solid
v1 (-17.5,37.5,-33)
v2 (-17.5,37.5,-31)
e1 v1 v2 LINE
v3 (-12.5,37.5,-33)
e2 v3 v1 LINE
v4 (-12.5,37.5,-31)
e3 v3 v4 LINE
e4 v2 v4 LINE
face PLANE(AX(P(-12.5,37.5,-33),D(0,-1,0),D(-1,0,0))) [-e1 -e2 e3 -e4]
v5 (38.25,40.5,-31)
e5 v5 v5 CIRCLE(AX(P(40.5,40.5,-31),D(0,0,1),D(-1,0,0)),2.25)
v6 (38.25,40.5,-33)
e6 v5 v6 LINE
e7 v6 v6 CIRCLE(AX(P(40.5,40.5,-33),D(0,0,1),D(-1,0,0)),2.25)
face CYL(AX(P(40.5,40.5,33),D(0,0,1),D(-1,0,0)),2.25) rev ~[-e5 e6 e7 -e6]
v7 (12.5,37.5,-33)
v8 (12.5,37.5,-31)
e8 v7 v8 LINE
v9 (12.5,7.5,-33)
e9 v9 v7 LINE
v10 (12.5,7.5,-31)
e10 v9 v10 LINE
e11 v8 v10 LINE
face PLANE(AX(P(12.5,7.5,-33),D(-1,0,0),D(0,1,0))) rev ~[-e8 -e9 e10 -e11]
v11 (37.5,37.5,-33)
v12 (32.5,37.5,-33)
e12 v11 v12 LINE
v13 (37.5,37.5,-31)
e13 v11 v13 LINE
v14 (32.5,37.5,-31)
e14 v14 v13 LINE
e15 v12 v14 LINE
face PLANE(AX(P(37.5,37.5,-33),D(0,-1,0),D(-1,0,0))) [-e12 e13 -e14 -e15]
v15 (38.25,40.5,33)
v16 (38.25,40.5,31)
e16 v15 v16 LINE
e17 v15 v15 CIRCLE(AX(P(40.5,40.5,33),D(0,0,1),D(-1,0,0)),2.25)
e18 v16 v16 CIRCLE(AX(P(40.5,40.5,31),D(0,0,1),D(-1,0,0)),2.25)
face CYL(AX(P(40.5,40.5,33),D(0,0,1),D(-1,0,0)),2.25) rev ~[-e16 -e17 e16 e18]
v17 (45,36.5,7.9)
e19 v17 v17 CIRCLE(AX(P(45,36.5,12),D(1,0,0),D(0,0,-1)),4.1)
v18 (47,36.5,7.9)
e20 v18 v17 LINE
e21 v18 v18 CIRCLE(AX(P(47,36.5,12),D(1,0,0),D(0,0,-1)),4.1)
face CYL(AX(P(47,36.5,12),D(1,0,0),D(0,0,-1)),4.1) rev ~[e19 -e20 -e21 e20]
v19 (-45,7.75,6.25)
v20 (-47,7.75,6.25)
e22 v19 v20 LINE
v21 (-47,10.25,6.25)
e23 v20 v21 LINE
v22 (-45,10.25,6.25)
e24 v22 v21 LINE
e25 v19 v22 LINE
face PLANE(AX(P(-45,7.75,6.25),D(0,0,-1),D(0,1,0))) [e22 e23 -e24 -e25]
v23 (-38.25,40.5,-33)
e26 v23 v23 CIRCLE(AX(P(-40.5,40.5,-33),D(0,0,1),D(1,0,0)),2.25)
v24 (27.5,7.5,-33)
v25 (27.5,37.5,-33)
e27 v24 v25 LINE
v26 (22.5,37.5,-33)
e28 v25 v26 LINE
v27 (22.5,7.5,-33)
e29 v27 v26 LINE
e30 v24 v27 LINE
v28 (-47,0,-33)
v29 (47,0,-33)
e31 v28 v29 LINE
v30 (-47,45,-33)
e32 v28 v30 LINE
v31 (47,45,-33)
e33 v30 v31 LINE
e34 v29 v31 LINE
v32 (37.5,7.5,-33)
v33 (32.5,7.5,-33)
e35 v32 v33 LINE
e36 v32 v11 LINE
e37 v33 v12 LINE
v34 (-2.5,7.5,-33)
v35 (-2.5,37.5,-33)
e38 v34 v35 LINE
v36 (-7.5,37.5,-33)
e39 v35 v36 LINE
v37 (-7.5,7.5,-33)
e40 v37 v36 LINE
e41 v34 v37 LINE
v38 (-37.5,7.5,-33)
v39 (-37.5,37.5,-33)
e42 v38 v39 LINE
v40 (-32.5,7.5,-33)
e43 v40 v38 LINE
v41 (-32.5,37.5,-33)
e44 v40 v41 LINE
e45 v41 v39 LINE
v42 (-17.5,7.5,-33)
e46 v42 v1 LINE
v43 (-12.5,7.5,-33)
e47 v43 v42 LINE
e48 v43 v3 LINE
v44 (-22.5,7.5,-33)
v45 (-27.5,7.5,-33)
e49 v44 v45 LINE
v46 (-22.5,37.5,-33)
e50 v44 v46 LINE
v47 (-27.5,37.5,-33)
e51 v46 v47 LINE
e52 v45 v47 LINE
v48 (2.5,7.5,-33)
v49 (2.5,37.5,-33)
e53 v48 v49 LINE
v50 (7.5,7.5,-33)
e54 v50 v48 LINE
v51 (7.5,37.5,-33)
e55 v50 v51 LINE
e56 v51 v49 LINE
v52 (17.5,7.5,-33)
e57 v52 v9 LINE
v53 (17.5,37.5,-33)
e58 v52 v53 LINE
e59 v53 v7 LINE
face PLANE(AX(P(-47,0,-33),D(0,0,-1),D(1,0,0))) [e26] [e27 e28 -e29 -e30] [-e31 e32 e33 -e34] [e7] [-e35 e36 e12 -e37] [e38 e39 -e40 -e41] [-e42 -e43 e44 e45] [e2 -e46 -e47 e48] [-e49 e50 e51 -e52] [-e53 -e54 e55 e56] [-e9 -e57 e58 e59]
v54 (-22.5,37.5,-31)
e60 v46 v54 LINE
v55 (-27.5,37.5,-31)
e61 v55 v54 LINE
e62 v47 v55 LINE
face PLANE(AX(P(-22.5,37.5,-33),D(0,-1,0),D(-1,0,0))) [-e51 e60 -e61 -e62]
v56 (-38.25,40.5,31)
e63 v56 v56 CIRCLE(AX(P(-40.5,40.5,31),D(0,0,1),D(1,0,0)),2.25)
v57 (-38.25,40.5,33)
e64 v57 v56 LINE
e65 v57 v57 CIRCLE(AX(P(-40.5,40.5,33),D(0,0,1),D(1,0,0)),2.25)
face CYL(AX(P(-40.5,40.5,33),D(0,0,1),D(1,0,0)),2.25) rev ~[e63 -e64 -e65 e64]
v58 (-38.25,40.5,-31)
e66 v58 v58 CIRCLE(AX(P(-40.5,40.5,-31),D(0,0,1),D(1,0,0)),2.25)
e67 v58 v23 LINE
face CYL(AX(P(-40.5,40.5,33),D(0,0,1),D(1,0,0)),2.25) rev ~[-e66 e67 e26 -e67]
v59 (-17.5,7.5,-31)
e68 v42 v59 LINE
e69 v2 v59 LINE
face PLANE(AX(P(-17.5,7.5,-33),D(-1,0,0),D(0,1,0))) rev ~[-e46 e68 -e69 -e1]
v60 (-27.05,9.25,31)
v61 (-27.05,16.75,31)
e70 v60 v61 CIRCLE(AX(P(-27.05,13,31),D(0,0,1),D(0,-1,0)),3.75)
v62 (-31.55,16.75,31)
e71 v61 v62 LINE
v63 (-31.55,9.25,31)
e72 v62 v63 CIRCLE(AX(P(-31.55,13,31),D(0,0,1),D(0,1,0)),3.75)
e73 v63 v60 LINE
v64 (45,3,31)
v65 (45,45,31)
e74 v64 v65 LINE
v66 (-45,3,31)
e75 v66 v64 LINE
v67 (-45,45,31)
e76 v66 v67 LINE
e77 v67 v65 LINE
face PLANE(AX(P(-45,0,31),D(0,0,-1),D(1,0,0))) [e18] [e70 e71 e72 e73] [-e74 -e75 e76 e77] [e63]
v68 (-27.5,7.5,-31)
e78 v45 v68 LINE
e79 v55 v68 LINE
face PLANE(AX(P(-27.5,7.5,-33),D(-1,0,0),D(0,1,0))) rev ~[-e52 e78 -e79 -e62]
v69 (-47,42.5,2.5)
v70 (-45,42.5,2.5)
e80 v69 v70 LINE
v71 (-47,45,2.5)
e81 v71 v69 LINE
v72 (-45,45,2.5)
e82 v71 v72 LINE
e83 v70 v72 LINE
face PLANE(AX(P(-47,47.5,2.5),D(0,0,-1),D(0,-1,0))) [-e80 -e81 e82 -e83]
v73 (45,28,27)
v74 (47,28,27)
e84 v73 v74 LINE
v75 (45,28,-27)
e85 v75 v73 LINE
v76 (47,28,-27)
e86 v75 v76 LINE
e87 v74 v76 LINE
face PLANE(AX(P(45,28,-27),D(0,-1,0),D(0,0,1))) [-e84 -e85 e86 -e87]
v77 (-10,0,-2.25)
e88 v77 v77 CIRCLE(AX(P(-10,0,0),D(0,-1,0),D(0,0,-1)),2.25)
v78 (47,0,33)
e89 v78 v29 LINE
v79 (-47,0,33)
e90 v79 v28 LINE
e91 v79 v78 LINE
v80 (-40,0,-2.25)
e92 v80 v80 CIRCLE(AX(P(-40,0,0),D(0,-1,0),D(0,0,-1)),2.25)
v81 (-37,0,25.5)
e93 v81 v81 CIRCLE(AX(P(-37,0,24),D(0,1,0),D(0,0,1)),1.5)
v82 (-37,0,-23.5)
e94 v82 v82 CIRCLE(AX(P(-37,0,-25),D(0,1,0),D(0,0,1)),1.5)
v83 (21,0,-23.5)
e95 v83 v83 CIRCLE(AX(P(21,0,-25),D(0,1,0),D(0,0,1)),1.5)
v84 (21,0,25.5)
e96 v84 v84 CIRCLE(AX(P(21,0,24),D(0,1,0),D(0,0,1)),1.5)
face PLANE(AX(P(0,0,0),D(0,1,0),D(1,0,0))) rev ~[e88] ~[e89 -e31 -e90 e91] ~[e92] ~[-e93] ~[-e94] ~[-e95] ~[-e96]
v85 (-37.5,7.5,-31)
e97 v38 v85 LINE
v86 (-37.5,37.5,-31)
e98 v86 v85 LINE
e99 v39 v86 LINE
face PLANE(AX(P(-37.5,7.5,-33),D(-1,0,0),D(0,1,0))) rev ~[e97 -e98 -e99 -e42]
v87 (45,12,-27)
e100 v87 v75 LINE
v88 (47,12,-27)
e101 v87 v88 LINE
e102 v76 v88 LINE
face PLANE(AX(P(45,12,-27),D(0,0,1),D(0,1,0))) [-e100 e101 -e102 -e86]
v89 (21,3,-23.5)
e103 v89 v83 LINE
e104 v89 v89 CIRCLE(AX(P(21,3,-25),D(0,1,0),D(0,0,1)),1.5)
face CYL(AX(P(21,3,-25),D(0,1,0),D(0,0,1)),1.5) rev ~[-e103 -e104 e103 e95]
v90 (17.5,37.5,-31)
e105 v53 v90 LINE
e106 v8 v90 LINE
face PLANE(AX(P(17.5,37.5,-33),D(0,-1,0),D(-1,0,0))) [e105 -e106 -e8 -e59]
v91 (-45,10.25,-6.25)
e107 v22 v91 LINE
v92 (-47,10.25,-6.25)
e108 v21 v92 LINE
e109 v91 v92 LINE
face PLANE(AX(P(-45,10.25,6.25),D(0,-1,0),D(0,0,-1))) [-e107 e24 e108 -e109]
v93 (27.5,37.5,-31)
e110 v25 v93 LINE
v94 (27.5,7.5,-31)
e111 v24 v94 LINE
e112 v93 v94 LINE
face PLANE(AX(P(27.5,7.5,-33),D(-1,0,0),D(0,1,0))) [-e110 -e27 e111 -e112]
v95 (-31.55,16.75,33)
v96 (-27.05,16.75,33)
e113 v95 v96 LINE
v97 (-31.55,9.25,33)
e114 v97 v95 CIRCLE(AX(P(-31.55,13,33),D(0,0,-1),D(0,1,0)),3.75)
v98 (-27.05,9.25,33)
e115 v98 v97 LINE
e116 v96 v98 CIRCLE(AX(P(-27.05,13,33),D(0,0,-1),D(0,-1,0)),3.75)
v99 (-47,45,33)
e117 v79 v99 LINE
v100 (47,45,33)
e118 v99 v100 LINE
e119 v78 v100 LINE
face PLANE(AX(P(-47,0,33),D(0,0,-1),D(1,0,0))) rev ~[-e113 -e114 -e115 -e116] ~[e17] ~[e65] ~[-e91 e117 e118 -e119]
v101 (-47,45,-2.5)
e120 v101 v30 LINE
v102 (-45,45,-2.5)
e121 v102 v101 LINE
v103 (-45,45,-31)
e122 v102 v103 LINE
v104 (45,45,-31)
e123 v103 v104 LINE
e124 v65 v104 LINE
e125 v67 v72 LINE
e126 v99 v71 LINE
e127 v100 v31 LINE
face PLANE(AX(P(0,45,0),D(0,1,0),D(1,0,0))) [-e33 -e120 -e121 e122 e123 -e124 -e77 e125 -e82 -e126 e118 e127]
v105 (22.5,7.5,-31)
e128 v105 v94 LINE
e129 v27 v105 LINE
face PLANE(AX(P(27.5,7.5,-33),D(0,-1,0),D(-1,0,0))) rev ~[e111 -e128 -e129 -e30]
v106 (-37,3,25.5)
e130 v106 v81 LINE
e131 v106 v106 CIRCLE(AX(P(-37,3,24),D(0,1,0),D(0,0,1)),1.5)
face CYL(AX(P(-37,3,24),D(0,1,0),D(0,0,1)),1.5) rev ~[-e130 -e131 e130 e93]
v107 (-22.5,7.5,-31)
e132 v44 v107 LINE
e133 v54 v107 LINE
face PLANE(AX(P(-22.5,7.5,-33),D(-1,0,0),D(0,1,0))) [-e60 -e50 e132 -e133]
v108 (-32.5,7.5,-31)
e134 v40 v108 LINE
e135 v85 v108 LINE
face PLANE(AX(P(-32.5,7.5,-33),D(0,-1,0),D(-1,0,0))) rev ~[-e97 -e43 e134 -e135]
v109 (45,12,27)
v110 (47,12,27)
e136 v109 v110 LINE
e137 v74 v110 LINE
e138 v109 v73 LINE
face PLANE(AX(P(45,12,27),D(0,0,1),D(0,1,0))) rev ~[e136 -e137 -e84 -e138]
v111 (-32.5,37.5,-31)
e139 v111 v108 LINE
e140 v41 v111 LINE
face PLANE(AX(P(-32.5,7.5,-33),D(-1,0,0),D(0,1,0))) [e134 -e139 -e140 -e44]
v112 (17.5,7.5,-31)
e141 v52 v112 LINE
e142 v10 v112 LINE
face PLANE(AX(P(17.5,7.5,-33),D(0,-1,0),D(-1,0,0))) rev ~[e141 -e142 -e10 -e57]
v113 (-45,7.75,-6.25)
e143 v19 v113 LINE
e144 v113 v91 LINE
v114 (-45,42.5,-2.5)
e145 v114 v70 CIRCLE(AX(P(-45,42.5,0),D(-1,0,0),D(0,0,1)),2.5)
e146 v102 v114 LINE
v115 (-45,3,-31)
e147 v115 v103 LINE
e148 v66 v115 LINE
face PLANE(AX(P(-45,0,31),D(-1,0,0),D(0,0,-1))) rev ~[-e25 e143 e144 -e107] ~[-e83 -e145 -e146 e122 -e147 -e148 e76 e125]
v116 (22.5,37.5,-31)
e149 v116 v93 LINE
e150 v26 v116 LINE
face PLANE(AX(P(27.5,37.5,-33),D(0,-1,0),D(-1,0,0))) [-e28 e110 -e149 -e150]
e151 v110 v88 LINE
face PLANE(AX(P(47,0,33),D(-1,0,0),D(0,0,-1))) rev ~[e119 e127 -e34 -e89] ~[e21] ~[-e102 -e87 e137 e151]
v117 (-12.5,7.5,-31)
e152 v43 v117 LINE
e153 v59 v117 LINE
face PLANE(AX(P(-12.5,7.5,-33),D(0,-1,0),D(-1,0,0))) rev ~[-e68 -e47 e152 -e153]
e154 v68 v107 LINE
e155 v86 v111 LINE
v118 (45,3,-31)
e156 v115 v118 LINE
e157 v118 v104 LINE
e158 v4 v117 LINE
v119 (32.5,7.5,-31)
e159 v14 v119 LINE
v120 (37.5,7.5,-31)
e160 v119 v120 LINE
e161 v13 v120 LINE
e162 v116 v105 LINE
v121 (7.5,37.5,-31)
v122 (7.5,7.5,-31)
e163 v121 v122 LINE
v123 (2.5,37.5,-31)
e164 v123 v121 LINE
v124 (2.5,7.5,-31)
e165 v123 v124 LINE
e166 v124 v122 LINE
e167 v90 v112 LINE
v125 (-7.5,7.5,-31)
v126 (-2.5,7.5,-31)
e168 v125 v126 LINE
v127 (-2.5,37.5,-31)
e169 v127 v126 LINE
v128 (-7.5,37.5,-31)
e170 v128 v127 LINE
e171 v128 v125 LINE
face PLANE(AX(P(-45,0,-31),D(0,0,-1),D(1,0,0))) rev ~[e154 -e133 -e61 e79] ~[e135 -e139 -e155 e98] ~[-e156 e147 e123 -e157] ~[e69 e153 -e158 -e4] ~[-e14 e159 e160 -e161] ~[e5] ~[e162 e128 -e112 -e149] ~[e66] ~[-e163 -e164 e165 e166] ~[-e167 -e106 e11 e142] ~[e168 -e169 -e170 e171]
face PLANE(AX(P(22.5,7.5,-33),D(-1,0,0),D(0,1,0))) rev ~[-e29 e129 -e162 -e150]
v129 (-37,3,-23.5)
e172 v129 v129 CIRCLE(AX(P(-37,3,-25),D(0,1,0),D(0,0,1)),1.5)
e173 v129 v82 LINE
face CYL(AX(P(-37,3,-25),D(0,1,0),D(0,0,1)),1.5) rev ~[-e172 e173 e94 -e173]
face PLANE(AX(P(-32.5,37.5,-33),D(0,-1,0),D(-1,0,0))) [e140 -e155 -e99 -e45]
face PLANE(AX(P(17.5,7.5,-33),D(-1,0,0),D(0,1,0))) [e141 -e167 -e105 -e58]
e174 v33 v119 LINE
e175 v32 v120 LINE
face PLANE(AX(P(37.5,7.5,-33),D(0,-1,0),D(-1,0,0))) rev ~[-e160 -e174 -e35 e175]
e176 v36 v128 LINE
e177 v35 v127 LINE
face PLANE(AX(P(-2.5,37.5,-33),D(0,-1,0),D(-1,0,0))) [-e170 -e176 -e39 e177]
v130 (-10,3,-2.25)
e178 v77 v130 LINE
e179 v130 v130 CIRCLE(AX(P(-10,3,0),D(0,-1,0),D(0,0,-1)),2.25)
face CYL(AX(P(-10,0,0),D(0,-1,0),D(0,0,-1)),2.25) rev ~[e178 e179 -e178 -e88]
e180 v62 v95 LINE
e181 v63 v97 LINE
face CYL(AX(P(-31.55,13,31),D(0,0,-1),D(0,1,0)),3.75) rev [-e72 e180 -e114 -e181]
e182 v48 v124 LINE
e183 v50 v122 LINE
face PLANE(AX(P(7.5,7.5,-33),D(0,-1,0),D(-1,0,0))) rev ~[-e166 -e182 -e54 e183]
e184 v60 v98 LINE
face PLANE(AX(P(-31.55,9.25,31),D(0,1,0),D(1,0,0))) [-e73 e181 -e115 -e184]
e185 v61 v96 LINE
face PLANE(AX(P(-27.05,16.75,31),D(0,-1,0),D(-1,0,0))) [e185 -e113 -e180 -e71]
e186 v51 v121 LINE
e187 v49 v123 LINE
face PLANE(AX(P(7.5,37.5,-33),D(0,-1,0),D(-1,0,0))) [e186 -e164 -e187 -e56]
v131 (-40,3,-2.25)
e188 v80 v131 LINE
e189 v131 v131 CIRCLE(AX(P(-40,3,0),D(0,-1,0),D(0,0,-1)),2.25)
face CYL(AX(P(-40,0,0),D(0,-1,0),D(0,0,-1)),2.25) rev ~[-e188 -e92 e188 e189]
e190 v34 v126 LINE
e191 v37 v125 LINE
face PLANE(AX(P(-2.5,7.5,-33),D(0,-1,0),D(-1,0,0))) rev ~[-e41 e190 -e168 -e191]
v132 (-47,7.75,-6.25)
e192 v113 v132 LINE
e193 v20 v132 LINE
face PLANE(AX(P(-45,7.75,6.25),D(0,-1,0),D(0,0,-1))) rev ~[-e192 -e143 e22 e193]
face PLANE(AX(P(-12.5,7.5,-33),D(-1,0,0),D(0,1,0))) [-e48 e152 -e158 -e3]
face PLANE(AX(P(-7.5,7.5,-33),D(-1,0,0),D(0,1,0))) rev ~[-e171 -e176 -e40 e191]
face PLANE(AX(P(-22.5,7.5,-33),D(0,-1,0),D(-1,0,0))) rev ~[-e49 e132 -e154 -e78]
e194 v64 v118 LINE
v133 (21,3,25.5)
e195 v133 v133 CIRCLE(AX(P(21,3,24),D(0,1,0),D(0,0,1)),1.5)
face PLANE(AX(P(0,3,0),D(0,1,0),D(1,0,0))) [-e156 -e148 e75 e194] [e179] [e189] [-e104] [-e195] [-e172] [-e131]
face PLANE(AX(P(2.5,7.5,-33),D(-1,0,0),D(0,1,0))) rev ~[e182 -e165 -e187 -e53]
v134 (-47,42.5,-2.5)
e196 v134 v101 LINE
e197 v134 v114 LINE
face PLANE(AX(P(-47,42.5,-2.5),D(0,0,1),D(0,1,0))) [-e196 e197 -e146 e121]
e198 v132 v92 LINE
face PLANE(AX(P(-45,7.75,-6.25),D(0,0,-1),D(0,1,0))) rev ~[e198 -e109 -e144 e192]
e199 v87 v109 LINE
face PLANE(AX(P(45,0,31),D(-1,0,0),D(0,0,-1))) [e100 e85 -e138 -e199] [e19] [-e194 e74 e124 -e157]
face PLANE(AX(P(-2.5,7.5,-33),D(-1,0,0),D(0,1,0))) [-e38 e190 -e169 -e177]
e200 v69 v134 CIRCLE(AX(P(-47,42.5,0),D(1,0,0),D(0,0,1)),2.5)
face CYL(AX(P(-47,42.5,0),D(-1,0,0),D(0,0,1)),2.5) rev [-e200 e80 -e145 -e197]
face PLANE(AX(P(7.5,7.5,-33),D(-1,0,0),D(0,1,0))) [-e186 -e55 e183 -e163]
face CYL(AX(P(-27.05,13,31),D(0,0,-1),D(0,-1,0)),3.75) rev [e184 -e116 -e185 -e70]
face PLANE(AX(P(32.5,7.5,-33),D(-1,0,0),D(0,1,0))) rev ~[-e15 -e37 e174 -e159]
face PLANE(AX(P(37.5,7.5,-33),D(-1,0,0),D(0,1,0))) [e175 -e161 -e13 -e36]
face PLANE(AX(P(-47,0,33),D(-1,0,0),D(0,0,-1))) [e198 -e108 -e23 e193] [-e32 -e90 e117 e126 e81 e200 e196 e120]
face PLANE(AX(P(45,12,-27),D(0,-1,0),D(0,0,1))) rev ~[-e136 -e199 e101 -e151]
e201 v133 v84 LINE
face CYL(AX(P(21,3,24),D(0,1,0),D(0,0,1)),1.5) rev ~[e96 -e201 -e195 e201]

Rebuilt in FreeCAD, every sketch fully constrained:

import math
import FreeCAD as App
import Part
import Sketcher


def add_polygon(sketch, points):
    """Adds a closed chain of lines whose ends are joined by coincident constraints."""
    first, n = sketch.GeometryCount, len(points)
    for a, b in zip(points, points[1:] + points[:1]):
        sketch.addGeometry(Part.LineSegment(App.Vector(*a, 0), App.Vector(*b, 0)), False)
    for i in range(n):
        sketch.addConstraint(Sketcher.Constraint("Coincident", first + i, 2, first + (i + 1) % n, 1))

doc = App.newDocument("Part")
body = doc.addObject("PartDesign::Body", "Body")

# Sketch on XZ plane
sketch1 = body.newObject("Sketcher::SketchObject", "Sketch")
sketch1.AttachmentSupport = (doc.getObject("XZ_Plane"), [""])
sketch1.MapMode = "FlatFace"
add_polygon(sketch1, [(-45, -31), (-45, 31), (45, 31), (45, -31)])  # lines 0-3
sketch1.addConstraint([
    Sketcher.Constraint("Vertical", 0),
    Sketcher.Constraint("Horizontal", 1),
    Sketcher.Constraint("Vertical", 2),
    Sketcher.Constraint("Horizontal", 3),
    Sketcher.Constraint("Symmetric", 0, 2, 2, 2, -1, 1),
    Sketcher.Constraint("DistanceX", 1, 1, 1, 2, 90.0),
    Sketcher.Constraint("DistanceY", 0, 1, 0, 2, 62.0),
])
pad1 = body.newObject("PartDesign::Pad", "Pad")
pad1.Profile = sketch1
pad1.Length = 3
pad1.Reversed = True

# Sketch on XZ plane
sketch2 = body.newObject("Sketcher::SketchObject", "Sketch001")
sketch2.AttachmentSupport = (doc.getObject("XZ_Plane"), [""])
sketch2.MapMode = "FlatFace"
sketch2.AttachmentOffset = App.Placement(App.Vector(0, 0, -3), App.Rotation())
sketch2.addGeometry(Part.Circle(App.Vector(-37, 24, 0), App.Vector(0, 0, 1), 1.5), False)
sketch2.addConstraint([
    Sketcher.Constraint("Diameter", 0, 3.0),
    Sketcher.Constraint("DistanceX", 0, 3, -1, 1, 37.0),
    Sketcher.Constraint("DistanceY", -1, 1, 0, 3, 24.0),
])
pocket1 = body.newObject("PartDesign::Pocket", "Pocket")
pocket1.Profile = sketch2
pocket1.Type = "UpToFirst"
pocket1.Reversed = True

# Sketch on XZ plane
sketch3 = body.newObject("Sketcher::SketchObject", "Sketch002")
sketch3.AttachmentSupport = (doc.getObject("XZ_Plane"), [""])
sketch3.MapMode = "FlatFace"
sketch3.AttachmentOffset = App.Placement(App.Vector(0, 0, -3), App.Rotation())
sketch3.addGeometry(Part.Circle(App.Vector(21, 24, 0), App.Vector(0, 0, 1), 1.5), False)
sketch3.addConstraint([
    Sketcher.Constraint("Diameter", 0, 3.0),
    Sketcher.Constraint("DistanceX", -1, 1, 0, 3, 21.0),
    Sketcher.Constraint("DistanceY", -1, 1, 0, 3, 24.0),
])
pocket2 = body.newObject("PartDesign::Pocket", "Pocket001")
pocket2.Profile = sketch3
pocket2.Type = "UpToFirst"
pocket2.Reversed = True

# Sketch on XZ plane
sketch4 = body.newObject("Sketcher::SketchObject", "Sketch003")
sketch4.AttachmentSupport = (doc.getObject("XZ_Plane"), [""])
sketch4.MapMode = "FlatFace"
sketch4.AttachmentOffset = App.Placement(App.Vector(0, 0, -3), App.Rotation())
sketch4.addGeometry(Part.Circle(App.Vector(21, -25, 0), App.Vector(0, 0, 1), 1.5), False)
sketch4.addConstraint([
    Sketcher.Constraint("Diameter", 0, 3.0),
    Sketcher.Constraint("DistanceX", -1, 1, 0, 3, 21.0),
    Sketcher.Constraint("DistanceY", 0, 3, -1, 1, 25.0),
])
pocket3 = body.newObject("PartDesign::Pocket", "Pocket002")
pocket3.Profile = sketch4
pocket3.Type = "UpToFirst"
pocket3.Reversed = True

# Sketch on XZ plane
sketch5 = body.newObject("Sketcher::SketchObject", "Sketch004")
sketch5.AttachmentSupport = (doc.getObject("XZ_Plane"), [""])
sketch5.MapMode = "FlatFace"
sketch5.AttachmentOffset = App.Placement(App.Vector(0, 0, -3), App.Rotation())
sketch5.addGeometry(Part.Circle(App.Vector(-37, -25, 0), App.Vector(0, 0, 1), 1.5), False)
sketch5.addConstraint([
    Sketcher.Constraint("Diameter", 0, 3.0),
    Sketcher.Constraint("DistanceX", 0, 3, -1, 1, 37.0),
    Sketcher.Constraint("DistanceY", 0, 3, -1, 1, 25.0),
])
pocket4 = body.newObject("PartDesign::Pocket", "Pocket003")
pocket4.Profile = sketch5
pocket4.Type = "UpToFirst"
pocket4.Reversed = True

# Sketch on XZ plane
sketch6 = body.newObject("Sketcher::SketchObject", "Sketch005")
sketch6.AttachmentSupport = (doc.getObject("XZ_Plane"), [""])
sketch6.MapMode = "FlatFace"
add_polygon(sketch6, [(-47, -33), (-47, 33), (47, 33), (47, -33)])  # lines 0-3
add_polygon(sketch6, [(45, 31), (-45, 31), (-45, -31), (45, -31)])  # lines 4-7
sketch6.addConstraint([
    Sketcher.Constraint("Vertical", 0),
    Sketcher.Constraint("Horizontal", 1),
    Sketcher.Constraint("Vertical", 2),
    Sketcher.Constraint("Horizontal", 3),
    Sketcher.Constraint("Horizontal", 4),
    Sketcher.Constraint("Vertical", 5),
    Sketcher.Constraint("Horizontal", 6),
    Sketcher.Constraint("Vertical", 7),
    Sketcher.Constraint("Symmetric", 0, 2, 2, 2, -1, 1),
    Sketcher.Constraint("Symmetric", 4, 2, 6, 2, -1, 1),
    Sketcher.Constraint("DistanceX", 1, 1, 1, 2, 94.0),
    Sketcher.Constraint("DistanceX", 4, 2, 4, 1, 90.0),
    Sketcher.Constraint("DistanceY", 0, 1, 0, 2, 66.0),
    Sketcher.Constraint("DistanceY", 5, 2, 5, 1, 62.0),
])
pad2 = body.newObject("PartDesign::Pad", "Pad001")
pad2.Profile = sketch6
pad2.Length = 45
pad2.Reversed = True

# Sketch on YZ plane
sketch7 = body.newObject("Sketcher::SketchObject", "Sketch006")
sketch7.AttachmentSupport = (doc.getObject("YZ_Plane"), [""])
sketch7.MapMode = "FlatFace"
sketch7.AttachmentOffset = App.Placement(App.Vector(0, 0, -45), App.Rotation())
add_polygon(sketch7, [(10.25, 6.25), (7.75, 6.25), (7.75, -6.25), (10.25, -6.25)])  # lines 0-3
sketch7.addConstraint([
    Sketcher.Constraint("Horizontal", 0),
    Sketcher.Constraint("Vertical", 1),
    Sketcher.Constraint("Horizontal", 2),
    Sketcher.Constraint("Vertical", 3),
    Sketcher.Constraint("DistanceX", 0, 2, 0, 1, 2.5),
    Sketcher.Constraint("DistanceY", 1, 2, 1, 1, 12.5),
    Sketcher.Constraint("DistanceX", -1, 1, 0, 2, 7.75),
    Sketcher.Constraint("DistanceY", -1, 1, 0, 2, 6.25),
])
pocket5 = body.newObject("PartDesign::Pocket", "Pocket004")
pocket5.Profile = sketch7
pocket5.Type = "UpToFirst"

# Sketch on XY plane
sketch8 = body.newObject("Sketcher::SketchObject", "Sketch007")
sketch8.AttachmentSupport = (doc.getObject("XY_Plane"), [""])
sketch8.MapMode = "FlatFace"
sketch8.AttachmentOffset = App.Placement(App.Vector(0, 0, 31), App.Rotation())
sketch8.addGeometry([
    Part.LineSegment(App.Vector(-27.05, 9.25, 0), App.Vector(-31.55, 9.25, 0)),
    Part.ArcOfCircle(Part.Circle(App.Vector(-31.55, 13, 0), App.Vector(0, 0, 1), 3.75), math.radians(90), math.radians(270)),
    Part.LineSegment(App.Vector(-31.55, 16.75, 0), App.Vector(-27.05, 16.75, 0)),
    Part.ArcOfCircle(Part.Circle(App.Vector(-27.05, 13, 0), App.Vector(0, 0, 1), 3.75), math.radians(-90), math.radians(90)),
], False)
sketch8.addConstraint([
    Sketcher.Constraint("Tangent", 0, 2, 1, 2),
    Sketcher.Constraint("Tangent", 1, 1, 2, 1),
    Sketcher.Constraint("Tangent", 2, 2, 3, 2),
    Sketcher.Constraint("Tangent", 3, 1, 0, 1),
    Sketcher.Constraint("Horizontal", 0),
    Sketcher.Constraint("Horizontal", 2),
    Sketcher.Constraint("Radius", 1, 3.75),
    Sketcher.Constraint("DistanceX", 0, 2, 0, 1, 4.5),
    Sketcher.Constraint("DistanceY", -1, 1, 1, 3, 13.0),
    Sketcher.Constraint("DistanceX", 1, 3, -1, 1, 31.55),
])
pocket6 = body.newObject("PartDesign::Pocket", "Pocket005")
pocket6.Profile = sketch8
pocket6.Type = "UpToFirst"
pocket6.Reversed = True

# Sketch on YZ plane
sketch9 = body.newObject("Sketcher::SketchObject", "Sketch008")
sketch9.AttachmentSupport = (doc.getObject("YZ_Plane"), [""])
sketch9.MapMode = "FlatFace"
sketch9.AttachmentOffset = App.Placement(App.Vector(0, 0, 45), App.Rotation())
add_polygon(sketch9, [(28, -27), (12, -27), (12, 27), (28, 27)])  # lines 0-3
sketch9.addConstraint([
    Sketcher.Constraint("Horizontal", 0),
    Sketcher.Constraint("Vertical", 1),
    Sketcher.Constraint("Horizontal", 2),
    Sketcher.Constraint("Vertical", 3),
    Sketcher.Constraint("DistanceX", 0, 2, 0, 1, 16.0),
    Sketcher.Constraint("DistanceY", 1, 1, 1, 2, 54.0),
    Sketcher.Constraint("DistanceX", -1, 1, 0, 2, 12.0),
    Sketcher.Constraint("DistanceY", 0, 2, -1, 1, 27.0),
])
pocket7 = body.newObject("PartDesign::Pocket", "Pocket006")
pocket7.Profile = sketch9
pocket7.Type = "UpToFirst"
pocket7.Reversed = True

# Sketch on YZ plane
sketch10 = body.newObject("Sketcher::SketchObject", "Sketch009")
sketch10.AttachmentSupport = (doc.getObject("YZ_Plane"), [""])
sketch10.MapMode = "FlatFace"
sketch10.AttachmentOffset = App.Placement(App.Vector(0, 0, 47), App.Rotation())
sketch10.addGeometry(Part.Circle(App.Vector(36.5, 12, 0), App.Vector(0, 0, 1), 4.1), False)
sketch10.addConstraint([
    Sketcher.Constraint("Diameter", 0, 8.2),
    Sketcher.Constraint("DistanceY", -1, 1, 0, 3, 12.0),
    Sketcher.Constraint("DistanceX", -1, 1, 0, 3, 36.5),
])
pocket8 = body.newObject("PartDesign::Pocket", "Pocket007")
pocket8.Profile = sketch10
pocket8.Type = "UpToFirst"

# Sketch on XY plane
sketch11 = body.newObject("Sketcher::SketchObject", "Sketch010")
sketch11.AttachmentSupport = (doc.getObject("XY_Plane"), [""])
sketch11.MapMode = "FlatFace"
sketch11.AttachmentOffset = App.Placement(App.Vector(0, 0, 33), App.Rotation())
sketch11.addGeometry([
    Part.Circle(App.Vector(-40.5, 40.5, 0), App.Vector(0, 0, 1), 2.25),
    Part.Circle(App.Vector(40.5, 40.5, 0), App.Vector(0, 0, 1), 2.25),
], False)
sketch11.addConstraint([
    Sketcher.Constraint("Equal", 0, 1),
    Sketcher.Constraint("Symmetric", 0, 3, 1, 3, -2),
    Sketcher.Constraint("Diameter", 0, 4.5),
    Sketcher.Constraint("DistanceX", 0, 3, 1, 3, 81.0),
    Sketcher.Constraint("DistanceY", -1, 1, 0, 3, 40.5),
])
pocket9 = body.newObject("PartDesign::Pocket", "Pocket008")
pocket9.Profile = sketch11
pocket9.Type = "ThroughAll"

# Sketch on XY plane
sketch12 = body.newObject("Sketcher::SketchObject", "Sketch011")
sketch12.AttachmentSupport = (doc.getObject("XY_Plane"), [""])
sketch12.MapMode = "FlatFace"
sketch12.AttachmentOffset = App.Placement(App.Vector(0, 0, -33), App.Rotation())
add_polygon(sketch12, [(-12.5, 37.5), (-12.5, 7.5), (-17.5, 7.5), (-17.5, 37.5)])  # lines 0-3
sketch12.addConstraint([
    Sketcher.Constraint("Vertical", 0),
    Sketcher.Constraint("Horizontal", 1),
    Sketcher.Constraint("Vertical", 2),
    Sketcher.Constraint("Horizontal", 3),
    Sketcher.Constraint("DistanceX", 1, 2, 1, 1, 5.0),
    Sketcher.Constraint("DistanceY", 0, 2, 0, 1, 30.0),
    Sketcher.Constraint("DistanceX", 0, 2, -1, 1, 12.5),
    Sketcher.Constraint("DistanceY", -1, 1, 0, 2, 7.5),
])
pocket10 = body.newObject("PartDesign::Pocket", "Pocket009")
pocket10.Profile = sketch12
pocket10.Type = "UpToFirst"
pocket10.Reversed = True

# Sketch on XY plane
sketch13 = body.newObject("Sketcher::SketchObject", "Sketch012")
sketch13.AttachmentSupport = (doc.getObject("XY_Plane"), [""])
sketch13.MapMode = "FlatFace"
sketch13.AttachmentOffset = App.Placement(App.Vector(0, 0, -33), App.Rotation())
add_polygon(sketch13, [(-2.5, 37.5), (-2.5, 7.5), (-7.5, 7.5), (-7.5, 37.5)])  # lines 0-3
sketch13.addConstraint([
    Sketcher.Constraint("Vertical", 0),
    Sketcher.Constraint("Horizontal", 1),
    Sketcher.Constraint("Vertical", 2),
    Sketcher.Constraint("Horizontal", 3),
    Sketcher.Constraint("DistanceX", 1, 2, 1, 1, 5.0),
    Sketcher.Constraint("DistanceY", 0, 2, 0, 1, 30.0),
    Sketcher.Constraint("DistanceX", 0, 2, -1, 1, 2.5),
    Sketcher.Constraint("DistanceY", -1, 1, 0, 2, 7.5),
])
pocket11 = body.newObject("PartDesign::Pocket", "Pocket010")
pocket11.Profile = sketch13
pocket11.Type = "UpToFirst"
pocket11.Reversed = True

# Sketch on XY plane
sketch14 = body.newObject("Sketcher::SketchObject", "Sketch013")
sketch14.AttachmentSupport = (doc.getObject("XY_Plane"), [""])
sketch14.MapMode = "FlatFace"
sketch14.AttachmentOffset = App.Placement(App.Vector(0, 0, -33), App.Rotation())
add_polygon(sketch14, [(-22.5, 37.5), (-22.5, 7.5), (-27.5, 7.5), (-27.5, 37.5)])  # lines 0-3
sketch14.addConstraint([
    Sketcher.Constraint("Vertical", 0),
    Sketcher.Constraint("Horizontal", 1),
    Sketcher.Constraint("Vertical", 2),
    Sketcher.Constraint("Horizontal", 3),
    Sketcher.Constraint("DistanceX", 1, 2, 1, 1, 5.0),
    Sketcher.Constraint("DistanceY", 0, 2, 0, 1, 30.0),
    Sketcher.Constraint("DistanceX", 0, 2, -1, 1, 22.5),
    Sketcher.Constraint("DistanceY", -1, 1, 0, 2, 7.5),
])
pocket12 = body.newObject("PartDesign::Pocket", "Pocket011")
pocket12.Profile = sketch14
pocket12.Type = "UpToFirst"
pocket12.Reversed = True

# Sketch on XY plane
sketch15 = body.newObject("Sketcher::SketchObject", "Sketch014")
sketch15.AttachmentSupport = (doc.getObject("XY_Plane"), [""])
sketch15.MapMode = "FlatFace"
sketch15.AttachmentOffset = App.Placement(App.Vector(0, 0, -33), App.Rotation())
add_polygon(sketch15, [(-32.5, 37.5), (-32.5, 7.5), (-37.5, 7.5), (-37.5, 37.5)])  # lines 0-3
sketch15.addConstraint([
    Sketcher.Constraint("Vertical", 0),
    Sketcher.Constraint("Horizontal", 1),
    Sketcher.Constraint("Vertical", 2),
    Sketcher.Constraint("Horizontal", 3),
    Sketcher.Constraint("DistanceX", 1, 2, 1, 1, 5.0),
    Sketcher.Constraint("DistanceY", 0, 2, 0, 1, 30.0),
    Sketcher.Constraint("DistanceX", 0, 2, -1, 1, 32.5),
    Sketcher.Constraint("DistanceY", -1, 1, 0, 2, 7.5),
])
pocket13 = body.newObject("PartDesign::Pocket", "Pocket012")
pocket13.Profile = sketch15
pocket13.Type = "UpToFirst"
pocket13.Reversed = True

# Sketch on XY plane
sketch16 = body.newObject("Sketcher::SketchObject", "Sketch015")
sketch16.AttachmentSupport = (doc.getObject("XY_Plane"), [""])
sketch16.MapMode = "FlatFace"
sketch16.AttachmentOffset = App.Placement(App.Vector(0, 0, -33), App.Rotation())
add_polygon(sketch16, [(7.5, 37.5), (7.5, 7.5), (2.5, 7.5), (2.5, 37.5)])  # lines 0-3
sketch16.addConstraint([
    Sketcher.Constraint("Vertical", 0),
    Sketcher.Constraint("Horizontal", 1),
    Sketcher.Constraint("Vertical", 2),
    Sketcher.Constraint("Horizontal", 3),
    Sketcher.Constraint("DistanceX", 1, 2, 1, 1, 5.0),
    Sketcher.Constraint("DistanceY", 0, 2, 0, 1, 30.0),
    Sketcher.Constraint("DistanceX", -1, 1, 0, 2, 7.5),
    Sketcher.Constraint("DistanceY", -1, 1, 0, 2, 7.5),
])
pocket14 = body.newObject("PartDesign::Pocket", "Pocket013")
pocket14.Profile = sketch16
pocket14.Type = "UpToFirst"
pocket14.Reversed = True

# Sketch on XY plane
sketch17 = body.newObject("Sketcher::SketchObject", "Sketch016")
sketch17.AttachmentSupport = (doc.getObject("XY_Plane"), [""])
sketch17.MapMode = "FlatFace"
sketch17.AttachmentOffset = App.Placement(App.Vector(0, 0, -33), App.Rotation())
add_polygon(sketch17, [(17.5, 37.5), (17.5, 7.5), (12.5, 7.5), (12.5, 37.5)])  # lines 0-3
sketch17.addConstraint([
    Sketcher.Constraint("Vertical", 0),
    Sketcher.Constraint("Horizontal", 1),
    Sketcher.Constraint("Vertical", 2),
    Sketcher.Constraint("Horizontal", 3),
    Sketcher.Constraint("DistanceX", 1, 2, 1, 1, 5.0),
    Sketcher.Constraint("DistanceY", 0, 2, 0, 1, 30.0),
    Sketcher.Constraint("DistanceX", -1, 1, 0, 2, 17.5),
    Sketcher.Constraint("DistanceY", -1, 1, 0, 2, 7.5),
])
pocket15 = body.newObject("PartDesign::Pocket", "Pocket014")
pocket15.Profile = sketch17
pocket15.Type = "UpToFirst"
pocket15.Reversed = True

# Sketch on XY plane
sketch18 = body.newObject("Sketcher::SketchObject", "Sketch017")
sketch18.AttachmentSupport = (doc.getObject("XY_Plane"), [""])
sketch18.MapMode = "FlatFace"
sketch18.AttachmentOffset = App.Placement(App.Vector(0, 0, -33), App.Rotation())
add_polygon(sketch18, [(27.5, 37.5), (27.5, 7.5), (22.5, 7.5), (22.5, 37.5)])  # lines 0-3
sketch18.addConstraint([
    Sketcher.Constraint("Vertical", 0),
    Sketcher.Constraint("Horizontal", 1),
    Sketcher.Constraint("Vertical", 2),
    Sketcher.Constraint("Horizontal", 3),
    Sketcher.Constraint("DistanceX", 1, 2, 1, 1, 5.0),
    Sketcher.Constraint("DistanceY", 0, 2, 0, 1, 30.0),
    Sketcher.Constraint("DistanceX", -1, 1, 0, 2, 27.5),
    Sketcher.Constraint("DistanceY", -1, 1, 0, 2, 7.5),
])
pocket16 = body.newObject("PartDesign::Pocket", "Pocket015")
pocket16.Profile = sketch18
pocket16.Type = "UpToFirst"
pocket16.Reversed = True

# Sketch on XY plane
sketch19 = body.newObject("Sketcher::SketchObject", "Sketch018")
sketch19.AttachmentSupport = (doc.getObject("XY_Plane"), [""])
sketch19.MapMode = "FlatFace"
sketch19.AttachmentOffset = App.Placement(App.Vector(0, 0, -33), App.Rotation())
add_polygon(sketch19, [(37.5, 37.5), (37.5, 7.5), (32.5, 7.5), (32.5, 37.5)])  # lines 0-3
sketch19.addConstraint([
    Sketcher.Constraint("Vertical", 0),
    Sketcher.Constraint("Horizontal", 1),
    Sketcher.Constraint("Vertical", 2),
    Sketcher.Constraint("Horizontal", 3),
    Sketcher.Constraint("DistanceX", 1, 2, 1, 1, 5.0),
    Sketcher.Constraint("DistanceY", 0, 2, 0, 1, 30.0),
    Sketcher.Constraint("DistanceX", -1, 1, 0, 2, 37.5),
    Sketcher.Constraint("DistanceY", -1, 1, 0, 2, 7.5),
])
pocket17 = body.newObject("PartDesign::Pocket", "Pocket016")
pocket17.Profile = sketch19
pocket17.Type = "UpToFirst"
pocket17.Reversed = True

# Sketch on YZ plane
sketch20 = body.newObject("Sketcher::SketchObject", "Sketch019")
sketch20.AttachmentSupport = (doc.getObject("YZ_Plane"), [""])
sketch20.MapMode = "FlatFace"
sketch20.AttachmentOffset = App.Placement(App.Vector(0, 0, -47), App.Rotation())
sketch20.addGeometry([
    Part.LineSegment(App.Vector(42.5, 2.5, 0), App.Vector(47.5, 2.5, 0)),
    Part.ArcOfCircle(Part.Circle(App.Vector(47.5, 0, 0), App.Vector(0, 0, 1), 2.5), math.radians(-90), math.radians(90)),
    Part.LineSegment(App.Vector(47.5, -2.5, 0), App.Vector(42.5, -2.5, 0)),
    Part.ArcOfCircle(Part.Circle(App.Vector(42.5, 0, 0), App.Vector(0, 0, 1), 2.5), math.radians(90), math.radians(270)),
], False)
sketch20.addConstraint([
    Sketcher.Constraint("Tangent", 0, 2, 1, 2),
    Sketcher.Constraint("Tangent", 1, 1, 2, 1),
    Sketcher.Constraint("Tangent", 2, 2, 3, 2),
    Sketcher.Constraint("Tangent", 3, 1, 0, 1),
    Sketcher.Constraint("Horizontal", 0),
    Sketcher.Constraint("Horizontal", 2),
    Sketcher.Constraint("PointOnObject", 1, 3, -1),
    Sketcher.Constraint("Radius", 1, 2.5),
    Sketcher.Constraint("DistanceX", 0, 1, 0, 2, 5.0),
    Sketcher.Constraint("DistanceX", -1, 1, 1, 3, 47.5),
])
pocket18 = body.newObject("PartDesign::Pocket", "Pocket017")
pocket18.Profile = sketch20
pocket18.Type = "UpToFirst"
pocket18.Reversed = True

# Sketch on XZ plane
sketch21 = body.newObject("Sketcher::SketchObject", "Sketch020")
sketch21.AttachmentSupport = (doc.getObject("XZ_Plane"), [""])
sketch21.MapMode = "FlatFace"
sketch21.addGeometry(Part.Circle(App.Vector(-40, 0, 0), App.Vector(0, 0, 1), 2.25), False)
sketch21.addConstraint([
    Sketcher.Constraint("PointOnObject", 0, 3, -1),
    Sketcher.Constraint("Diameter", 0, 4.5),
    Sketcher.Constraint("DistanceX", 0, 3, -1, 1, 40.0),
])
pocket19 = body.newObject("PartDesign::Pocket", "Pocket018")
pocket19.Profile = sketch21
pocket19.Type = "UpToFirst"

# Sketch on XZ plane
sketch22 = body.newObject("Sketcher::SketchObject", "Sketch021")
sketch22.AttachmentSupport = (doc.getObject("XZ_Plane"), [""])
sketch22.MapMode = "FlatFace"
sketch22.addGeometry(Part.Circle(App.Vector(-10, 0, 0), App.Vector(0, 0, 1), 2.25), False)
sketch22.addConstraint([
    Sketcher.Constraint("PointOnObject", 0, 3, -1),
    Sketcher.Constraint("Diameter", 0, 4.5),
    Sketcher.Constraint("DistanceX", 0, 3, -1, 1, 10.0),
])
pocket20 = body.newObject("PartDesign::Pocket", "Pocket019")
pocket20.Profile = sketch22
pocket20.Type = "UpToFirst"

doc.recompute()
